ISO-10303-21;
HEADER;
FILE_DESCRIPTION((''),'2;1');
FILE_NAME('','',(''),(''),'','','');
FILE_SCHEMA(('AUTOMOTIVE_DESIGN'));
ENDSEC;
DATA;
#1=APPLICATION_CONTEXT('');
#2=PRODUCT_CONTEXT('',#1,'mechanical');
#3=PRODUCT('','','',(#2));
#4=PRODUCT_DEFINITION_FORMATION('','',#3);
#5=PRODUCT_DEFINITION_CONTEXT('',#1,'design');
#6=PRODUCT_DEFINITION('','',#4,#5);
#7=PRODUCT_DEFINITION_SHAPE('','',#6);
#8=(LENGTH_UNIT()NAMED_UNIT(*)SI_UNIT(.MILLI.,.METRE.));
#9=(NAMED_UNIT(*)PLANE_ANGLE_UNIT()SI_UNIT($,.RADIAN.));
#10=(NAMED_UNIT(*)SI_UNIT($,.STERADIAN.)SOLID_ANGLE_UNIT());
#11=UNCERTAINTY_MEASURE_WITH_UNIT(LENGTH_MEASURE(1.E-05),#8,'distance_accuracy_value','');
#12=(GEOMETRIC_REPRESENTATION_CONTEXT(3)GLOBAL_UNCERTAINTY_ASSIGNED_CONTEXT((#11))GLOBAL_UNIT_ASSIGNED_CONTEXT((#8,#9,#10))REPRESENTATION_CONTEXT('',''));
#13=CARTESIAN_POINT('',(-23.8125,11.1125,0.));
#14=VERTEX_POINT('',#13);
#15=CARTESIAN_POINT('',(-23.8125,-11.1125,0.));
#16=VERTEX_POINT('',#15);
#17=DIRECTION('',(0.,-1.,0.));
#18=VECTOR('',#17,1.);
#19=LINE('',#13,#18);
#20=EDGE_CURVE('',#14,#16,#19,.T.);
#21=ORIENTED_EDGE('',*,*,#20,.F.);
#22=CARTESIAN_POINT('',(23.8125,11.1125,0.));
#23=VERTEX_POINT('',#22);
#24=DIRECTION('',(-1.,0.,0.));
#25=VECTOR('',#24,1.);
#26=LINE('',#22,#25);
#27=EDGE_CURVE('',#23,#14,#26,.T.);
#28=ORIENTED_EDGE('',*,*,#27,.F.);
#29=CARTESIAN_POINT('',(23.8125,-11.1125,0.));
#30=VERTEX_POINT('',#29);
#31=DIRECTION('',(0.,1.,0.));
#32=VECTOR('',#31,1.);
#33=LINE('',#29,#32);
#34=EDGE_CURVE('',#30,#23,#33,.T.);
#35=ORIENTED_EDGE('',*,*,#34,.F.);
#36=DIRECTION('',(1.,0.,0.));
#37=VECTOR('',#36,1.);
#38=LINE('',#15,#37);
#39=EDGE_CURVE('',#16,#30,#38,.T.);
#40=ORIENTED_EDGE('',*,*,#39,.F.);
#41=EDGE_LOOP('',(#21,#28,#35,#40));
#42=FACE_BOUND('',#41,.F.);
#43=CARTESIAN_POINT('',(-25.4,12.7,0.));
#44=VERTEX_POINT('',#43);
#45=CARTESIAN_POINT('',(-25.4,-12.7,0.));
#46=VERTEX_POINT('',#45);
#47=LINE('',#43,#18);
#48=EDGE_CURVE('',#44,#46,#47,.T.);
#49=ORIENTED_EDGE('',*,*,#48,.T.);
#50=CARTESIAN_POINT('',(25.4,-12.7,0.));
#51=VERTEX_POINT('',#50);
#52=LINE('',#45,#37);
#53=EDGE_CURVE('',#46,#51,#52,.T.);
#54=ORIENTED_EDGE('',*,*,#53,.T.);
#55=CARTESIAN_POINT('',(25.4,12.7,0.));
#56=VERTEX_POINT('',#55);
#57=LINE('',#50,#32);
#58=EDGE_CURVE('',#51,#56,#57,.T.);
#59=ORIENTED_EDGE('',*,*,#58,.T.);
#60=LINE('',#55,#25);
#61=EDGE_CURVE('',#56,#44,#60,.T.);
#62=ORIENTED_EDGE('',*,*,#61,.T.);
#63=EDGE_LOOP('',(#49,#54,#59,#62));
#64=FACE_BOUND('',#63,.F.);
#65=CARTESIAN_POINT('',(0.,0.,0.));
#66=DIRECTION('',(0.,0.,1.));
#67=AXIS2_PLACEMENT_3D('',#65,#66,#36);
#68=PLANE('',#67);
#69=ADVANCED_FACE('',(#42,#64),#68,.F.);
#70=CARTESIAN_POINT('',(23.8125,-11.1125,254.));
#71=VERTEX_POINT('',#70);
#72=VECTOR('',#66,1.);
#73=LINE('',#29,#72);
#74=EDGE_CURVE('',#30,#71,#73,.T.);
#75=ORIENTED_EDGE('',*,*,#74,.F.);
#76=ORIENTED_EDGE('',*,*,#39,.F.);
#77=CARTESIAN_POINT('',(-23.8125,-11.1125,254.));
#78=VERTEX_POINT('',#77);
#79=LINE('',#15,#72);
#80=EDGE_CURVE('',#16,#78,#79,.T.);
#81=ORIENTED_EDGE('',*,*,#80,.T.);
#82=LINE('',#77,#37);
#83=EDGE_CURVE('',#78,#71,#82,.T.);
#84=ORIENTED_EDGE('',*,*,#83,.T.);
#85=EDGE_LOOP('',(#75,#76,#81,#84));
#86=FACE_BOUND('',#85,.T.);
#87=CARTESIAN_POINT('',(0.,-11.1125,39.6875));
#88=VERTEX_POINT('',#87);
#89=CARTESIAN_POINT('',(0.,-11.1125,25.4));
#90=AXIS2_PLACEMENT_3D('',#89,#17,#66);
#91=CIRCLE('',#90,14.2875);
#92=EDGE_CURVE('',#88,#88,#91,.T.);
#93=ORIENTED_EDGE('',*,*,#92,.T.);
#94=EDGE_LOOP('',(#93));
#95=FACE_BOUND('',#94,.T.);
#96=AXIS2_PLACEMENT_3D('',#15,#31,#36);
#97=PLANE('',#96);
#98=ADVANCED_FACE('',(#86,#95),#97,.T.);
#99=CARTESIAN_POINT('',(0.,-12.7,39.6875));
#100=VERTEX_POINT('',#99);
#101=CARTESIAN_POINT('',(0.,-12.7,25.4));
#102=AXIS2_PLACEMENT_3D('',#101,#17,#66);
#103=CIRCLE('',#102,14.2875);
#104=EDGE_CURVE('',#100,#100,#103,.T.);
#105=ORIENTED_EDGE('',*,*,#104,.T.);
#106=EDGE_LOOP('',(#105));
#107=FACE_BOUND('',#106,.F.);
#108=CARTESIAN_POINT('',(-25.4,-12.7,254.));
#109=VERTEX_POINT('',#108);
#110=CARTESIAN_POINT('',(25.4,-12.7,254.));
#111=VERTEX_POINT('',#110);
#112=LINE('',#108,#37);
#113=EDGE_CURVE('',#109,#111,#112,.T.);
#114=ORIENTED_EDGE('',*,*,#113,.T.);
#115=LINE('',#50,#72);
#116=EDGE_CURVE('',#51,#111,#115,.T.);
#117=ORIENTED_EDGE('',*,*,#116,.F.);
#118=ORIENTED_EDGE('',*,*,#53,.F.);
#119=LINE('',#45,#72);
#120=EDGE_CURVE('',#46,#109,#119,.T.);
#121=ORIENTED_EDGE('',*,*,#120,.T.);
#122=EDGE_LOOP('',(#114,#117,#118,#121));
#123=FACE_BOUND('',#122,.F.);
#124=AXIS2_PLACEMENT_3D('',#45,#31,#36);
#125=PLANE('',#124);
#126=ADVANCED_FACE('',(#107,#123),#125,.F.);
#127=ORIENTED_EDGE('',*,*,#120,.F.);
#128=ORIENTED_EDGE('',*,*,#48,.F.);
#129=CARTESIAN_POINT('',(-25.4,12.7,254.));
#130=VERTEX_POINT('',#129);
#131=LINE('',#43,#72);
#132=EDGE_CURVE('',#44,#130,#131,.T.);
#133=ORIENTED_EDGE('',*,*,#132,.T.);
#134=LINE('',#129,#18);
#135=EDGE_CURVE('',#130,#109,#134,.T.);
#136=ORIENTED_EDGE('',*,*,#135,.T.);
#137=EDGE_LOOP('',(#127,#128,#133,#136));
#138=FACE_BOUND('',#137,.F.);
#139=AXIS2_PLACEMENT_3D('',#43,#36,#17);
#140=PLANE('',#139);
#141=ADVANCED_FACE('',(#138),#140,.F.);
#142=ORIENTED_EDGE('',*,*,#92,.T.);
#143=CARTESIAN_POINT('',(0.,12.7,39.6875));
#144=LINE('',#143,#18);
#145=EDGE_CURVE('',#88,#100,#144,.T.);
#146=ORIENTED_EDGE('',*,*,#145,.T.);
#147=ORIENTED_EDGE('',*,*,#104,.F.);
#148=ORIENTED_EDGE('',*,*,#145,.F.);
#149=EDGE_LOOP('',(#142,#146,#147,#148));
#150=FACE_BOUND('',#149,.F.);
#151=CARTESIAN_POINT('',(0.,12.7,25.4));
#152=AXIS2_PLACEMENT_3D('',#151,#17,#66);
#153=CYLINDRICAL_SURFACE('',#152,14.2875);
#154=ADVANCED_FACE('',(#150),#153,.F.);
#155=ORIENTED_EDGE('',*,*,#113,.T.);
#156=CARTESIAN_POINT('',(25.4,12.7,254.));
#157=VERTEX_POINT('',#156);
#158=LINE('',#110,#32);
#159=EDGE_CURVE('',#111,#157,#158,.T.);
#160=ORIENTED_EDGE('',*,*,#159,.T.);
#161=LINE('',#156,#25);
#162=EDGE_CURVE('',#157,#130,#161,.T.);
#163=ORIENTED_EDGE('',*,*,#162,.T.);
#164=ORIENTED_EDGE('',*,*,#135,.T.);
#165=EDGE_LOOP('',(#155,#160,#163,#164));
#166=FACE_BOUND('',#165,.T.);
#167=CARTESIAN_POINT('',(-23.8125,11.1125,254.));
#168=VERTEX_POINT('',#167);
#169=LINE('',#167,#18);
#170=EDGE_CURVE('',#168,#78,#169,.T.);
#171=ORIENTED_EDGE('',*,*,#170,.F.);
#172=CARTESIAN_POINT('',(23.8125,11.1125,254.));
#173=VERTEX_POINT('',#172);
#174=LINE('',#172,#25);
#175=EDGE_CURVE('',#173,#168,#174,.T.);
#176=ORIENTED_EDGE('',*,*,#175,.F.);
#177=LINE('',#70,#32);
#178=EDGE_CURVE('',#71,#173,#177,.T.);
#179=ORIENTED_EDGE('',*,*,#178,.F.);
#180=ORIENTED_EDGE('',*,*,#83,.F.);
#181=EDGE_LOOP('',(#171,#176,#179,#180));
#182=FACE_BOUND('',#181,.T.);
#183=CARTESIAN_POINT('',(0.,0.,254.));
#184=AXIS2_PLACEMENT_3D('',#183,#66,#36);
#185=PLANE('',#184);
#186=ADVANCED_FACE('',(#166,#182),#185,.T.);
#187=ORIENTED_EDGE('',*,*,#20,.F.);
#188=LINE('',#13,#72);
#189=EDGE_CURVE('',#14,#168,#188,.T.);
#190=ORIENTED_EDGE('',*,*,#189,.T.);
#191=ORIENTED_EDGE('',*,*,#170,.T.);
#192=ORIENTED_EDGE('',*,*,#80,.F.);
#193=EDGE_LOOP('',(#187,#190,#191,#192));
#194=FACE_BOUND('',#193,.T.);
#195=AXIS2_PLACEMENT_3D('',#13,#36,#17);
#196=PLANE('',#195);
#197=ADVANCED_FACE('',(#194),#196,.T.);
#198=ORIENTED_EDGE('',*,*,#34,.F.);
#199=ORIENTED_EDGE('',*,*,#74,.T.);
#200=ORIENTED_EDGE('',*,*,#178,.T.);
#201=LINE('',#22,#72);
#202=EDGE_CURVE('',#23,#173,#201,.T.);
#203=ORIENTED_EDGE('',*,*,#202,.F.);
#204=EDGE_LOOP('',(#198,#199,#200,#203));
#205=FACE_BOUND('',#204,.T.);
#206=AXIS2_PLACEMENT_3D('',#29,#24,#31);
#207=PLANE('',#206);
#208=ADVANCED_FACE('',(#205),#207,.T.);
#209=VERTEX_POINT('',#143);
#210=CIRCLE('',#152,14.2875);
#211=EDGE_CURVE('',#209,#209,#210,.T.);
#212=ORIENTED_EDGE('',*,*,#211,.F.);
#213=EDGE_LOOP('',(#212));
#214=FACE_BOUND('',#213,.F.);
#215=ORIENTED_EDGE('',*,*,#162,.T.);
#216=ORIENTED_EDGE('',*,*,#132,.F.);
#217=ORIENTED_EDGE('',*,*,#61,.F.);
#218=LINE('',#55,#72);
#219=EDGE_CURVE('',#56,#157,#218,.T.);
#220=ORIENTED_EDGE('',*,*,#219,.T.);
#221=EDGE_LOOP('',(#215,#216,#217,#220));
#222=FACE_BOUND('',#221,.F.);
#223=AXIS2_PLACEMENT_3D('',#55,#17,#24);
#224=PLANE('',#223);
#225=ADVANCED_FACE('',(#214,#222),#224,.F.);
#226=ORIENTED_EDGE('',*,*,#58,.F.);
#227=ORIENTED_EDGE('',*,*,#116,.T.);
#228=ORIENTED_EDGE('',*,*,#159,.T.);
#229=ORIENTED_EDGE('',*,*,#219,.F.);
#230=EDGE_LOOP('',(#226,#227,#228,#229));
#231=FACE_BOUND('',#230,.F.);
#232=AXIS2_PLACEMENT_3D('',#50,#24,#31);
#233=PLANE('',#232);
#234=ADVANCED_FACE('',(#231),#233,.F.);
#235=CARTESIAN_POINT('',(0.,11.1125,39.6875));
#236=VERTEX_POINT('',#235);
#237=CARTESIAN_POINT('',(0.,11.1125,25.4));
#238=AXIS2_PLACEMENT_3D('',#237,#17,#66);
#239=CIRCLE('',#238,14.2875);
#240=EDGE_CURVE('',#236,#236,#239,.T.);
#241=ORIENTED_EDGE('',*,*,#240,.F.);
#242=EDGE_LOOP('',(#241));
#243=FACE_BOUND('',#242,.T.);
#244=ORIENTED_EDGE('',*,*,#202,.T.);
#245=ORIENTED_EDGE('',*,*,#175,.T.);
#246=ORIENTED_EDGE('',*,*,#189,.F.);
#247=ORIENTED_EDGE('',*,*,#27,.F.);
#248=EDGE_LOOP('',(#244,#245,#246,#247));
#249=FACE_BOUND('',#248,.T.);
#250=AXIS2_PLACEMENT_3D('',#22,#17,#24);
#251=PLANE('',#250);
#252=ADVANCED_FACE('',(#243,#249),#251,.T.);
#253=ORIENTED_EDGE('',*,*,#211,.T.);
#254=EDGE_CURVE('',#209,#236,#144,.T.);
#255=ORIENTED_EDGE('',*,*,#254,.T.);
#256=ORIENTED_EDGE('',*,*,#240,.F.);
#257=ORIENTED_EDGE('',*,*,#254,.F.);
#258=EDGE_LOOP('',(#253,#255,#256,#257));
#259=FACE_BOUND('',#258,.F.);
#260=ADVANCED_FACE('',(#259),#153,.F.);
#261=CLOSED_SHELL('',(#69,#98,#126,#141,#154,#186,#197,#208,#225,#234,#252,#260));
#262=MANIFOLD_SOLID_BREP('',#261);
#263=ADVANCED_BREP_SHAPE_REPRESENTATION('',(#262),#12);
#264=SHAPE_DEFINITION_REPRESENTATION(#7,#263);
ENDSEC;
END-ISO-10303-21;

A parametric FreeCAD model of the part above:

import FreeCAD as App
import Part
import Sketcher

V = App.Vector
Q = App.Units.Quantity


def add_polygon(sketch, points):
    """Adds a closed chain of lines whose ends are joined by coincident constraints."""
    first, n = sketch.GeometryCount, len(points)
    for a, b in zip(points, points[1:] + points[:1]):
        sketch.addGeometry(Part.LineSegment(App.Vector(*a, 0), App.Vector(*b, 0)), False)
    for i in range(n):
        sketch.addConstraint(Sketcher.Constraint("Coincident", first + i, 2, first + (i + 1) % n, 1))

doc = App.newDocument("Part")
body = doc.addObject("PartDesign::Body", "Body")

# Sketch on XY plane
sketch1 = body.newObject("Sketcher::SketchObject", "Sketch")
sketch1.AttachmentSupport = (doc.getObject("XY_Plane"), [""])
sketch1.MapMode = "FlatFace"
add_polygon(sketch1, [(-25.4, 12.7), (-25.4, -12.7), (25.4, -12.7), (25.4, 12.7)])  # lines 0-3
add_polygon(sketch1, [(23.8125, -11.1125), (-23.8125, -11.1125), (-23.8125, 11.1125), (23.8125, 11.1125)])  # lines 4-7
sketch1.addConstraint([
    Sketcher.Constraint("Vertical", 0),
    Sketcher.Constraint("Horizontal", 1),
    Sketcher.Constraint("Vertical", 2),
    Sketcher.Constraint("Horizontal", 3),
    Sketcher.Constraint("Horizontal", 4),
    Sketcher.Constraint("Vertical", 5),
    Sketcher.Constraint("Horizontal", 6),
    Sketcher.Constraint("Vertical", 7),
    Sketcher.Constraint("Symmetric", 0, 2, 2, 2, -1, 1),
    Sketcher.Constraint("Symmetric", 4, 2, 6, 2, -1, 1),
    Sketcher.Constraint("DistanceX", 1, 1, 1, 2, Q("2 in")),
    Sketcher.Constraint("DistanceY", 0, 2, 0, 1, Q("1 in")),
    Sketcher.Constraint("DistanceX", 4, 2, 4, 1, Q("1.875 in")),
    Sketcher.Constraint("DistanceY", 5, 1, 5, 2, Q("0.875 in")),
])
pad1 = body.newObject("PartDesign::Pad", "Pad")
pad1.Profile = sketch1
pad1.Length = Q("10 in")

# Sketch on XZ plane
sketch2 = body.newObject("Sketcher::SketchObject", "Sketch001")
sketch2.AttachmentSupport = (doc.getObject("XZ_Plane"), [""])
sketch2.MapMode = "FlatFace"
sketch2.AttachmentOffset = App.Placement(V(0, 0, -0.5 * 25.4), App.Rotation())
sketch2.addGeometry(Part.Circle(V(0, 25.4, 0), V(0, 0, 1), 14.2875), False)
sketch2.addConstraint([
    Sketcher.Constraint("PointOnObject", 0, 3, -2),
    Sketcher.Constraint("Diameter", 0, Q("1.125 in")),
    Sketcher.Constraint("DistanceY", -1, 1, 0, 3, Q("1 in")),
])
doc.recompute()
hole = body.newObject("PartDesign::Hole", "Hole")
hole.Profile = sketch2
hole.ThreadType = "None"
hole.Diameter = Q("1.125 in")
hole.DepthType = "ThroughAll"
hole.Reversed = True

doc.recompute()
